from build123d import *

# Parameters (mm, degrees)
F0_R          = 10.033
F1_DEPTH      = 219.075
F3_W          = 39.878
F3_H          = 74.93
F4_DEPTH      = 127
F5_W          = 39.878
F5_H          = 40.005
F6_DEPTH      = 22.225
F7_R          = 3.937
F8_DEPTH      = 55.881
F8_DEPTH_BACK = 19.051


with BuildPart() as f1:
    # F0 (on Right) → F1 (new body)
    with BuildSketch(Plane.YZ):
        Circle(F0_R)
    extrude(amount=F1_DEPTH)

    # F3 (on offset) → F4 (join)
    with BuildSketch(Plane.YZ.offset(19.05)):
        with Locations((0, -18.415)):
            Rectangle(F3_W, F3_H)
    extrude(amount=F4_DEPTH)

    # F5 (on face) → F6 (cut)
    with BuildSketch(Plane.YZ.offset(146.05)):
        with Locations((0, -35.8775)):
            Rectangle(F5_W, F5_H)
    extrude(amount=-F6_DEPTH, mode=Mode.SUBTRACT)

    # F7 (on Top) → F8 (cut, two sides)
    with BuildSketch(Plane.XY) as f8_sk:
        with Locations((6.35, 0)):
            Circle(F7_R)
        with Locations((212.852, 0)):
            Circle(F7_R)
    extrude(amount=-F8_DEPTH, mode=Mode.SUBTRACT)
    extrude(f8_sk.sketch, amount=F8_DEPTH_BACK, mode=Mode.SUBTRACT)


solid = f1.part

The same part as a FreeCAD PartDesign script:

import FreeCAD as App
import Part
import Sketcher
Q = App.Units.Quantity


def add_polygon(sketch, points):
    """Adds a closed chain of lines whose ends are joined by coincident constraints."""
    first, n = sketch.GeometryCount, len(points)
    for a, b in zip(points, points[1:] + points[:1]):
        sketch.addGeometry(Part.LineSegment(App.Vector(*a, 0), App.Vector(*b, 0)), False)
    for i in range(n):
        sketch.addConstraint(Sketcher.Constraint("Coincident", first + i, 2, first + (i + 1) % n, 1))

doc = App.newDocument("Part")
body = doc.addObject("PartDesign::Body", "Body")

# Sketch on YZ plane
sketch1 = body.newObject("Sketcher::SketchObject", "Sketch")
sketch1.AttachmentSupport = (doc.getObject("YZ_Plane"), [""])
sketch1.MapMode = "FlatFace"
sketch1.addGeometry(Part.Circle(App.Vector(0, 0, 0), App.Vector(0, 0, 1), 10), False)
sketch1.addConstraint(Sketcher.Constraint("Coincident", 0, 3, -1, 1))
sketch1.addConstraint(Sketcher.Constraint("Diameter", 0, Q("0.79 in")))
pad1 = body.newObject("PartDesign::Pad", "Pad")
pad1.Profile = sketch1
pad1.Length = Q("8.625 in")

# Sketch on YZ plane
sketch2 = body.newObject("Sketcher::SketchObject", "Sketch001")
sketch2.AttachmentSupport = (doc.getObject("YZ_Plane"), [""])
sketch2.MapMode = "FlatFace"
sketch2.AttachmentOffset = App.Placement(App.Vector(0, 0, 0.75 * 25.4), App.Rotation())
add_polygon(sketch2, [(-20, 19), (-20, -56), (20, -56), (20, 19)])  # lines 0-3
sketch2.addConstraint(Sketcher.Constraint("Vertical", 0))
sketch2.addConstraint(Sketcher.Constraint("Horizontal", 1))
sketch2.addConstraint(Sketcher.Constraint("Vertical", 2))
sketch2.addConstraint(Sketcher.Constraint("Horizontal", 3))
sketch2.addConstraint(Sketcher.Constraint("DistanceX", 1, 1, 1, 2, Q("1.57 in")))
sketch2.addConstraint(Sketcher.Constraint("DistanceY", 0, 2, 0, 1, Q("2.95 in")))
sketch2.addConstraint(Sketcher.Constraint("DistanceY", 0, 2, -1, 1, Q("2.2 in")))
sketch2.addConstraint(Sketcher.Constraint("DistanceX", 0, 2, -1, 1, Q("0.785 in")))
pad2 = body.newObject("PartDesign::Pad", "Pad001")
pad2.Profile = sketch2
pad2.Length = Q("5 in")

# Sketch on YZ plane
sketch3 = body.newObject("Sketcher::SketchObject", "Sketch002")
sketch3.AttachmentSupport = (doc.getObject("YZ_Plane"), [""])
sketch3.MapMode = "FlatFace"
sketch3.AttachmentOffset = App.Placement(App.Vector(0, 0, 5.75 * 25.4), App.Rotation())
add_polygon(sketch3, [(-20, -16), (-20, -56), (20, -56), (20, -16)])  # lines 0-3
sketch3.addConstraint(Sketcher.Constraint("Vertical", 0))
sketch3.addConstraint(Sketcher.Constraint("Horizontal", 1))
sketch3.addConstraint(Sketcher.Constraint("Vertical", 2))
sketch3.addConstraint(Sketcher.Constraint("Horizontal", 3))
sketch3.addConstraint(Sketcher.Constraint("DistanceX", 1, 1, 1, 2, Q("1.57 in")))
sketch3.addConstraint(Sketcher.Constraint("DistanceY", 0, 2, -1, 1, Q("2.2 in")))
sketch3.addConstraint(Sketcher.Constraint("DistanceY", 0, 2, 0, 1, Q("1.575 in")))
sketch3.addConstraint(Sketcher.Constraint("DistanceX", 0, 2, -1, 1, Q("0.785 in")))
pocket1 = body.newObject("PartDesign::Pocket", "Pocket")
pocket1.Profile = sketch3
pocket1.Length = Q("0.875 in")

# Sketch on XY plane
sketch4 = body.newObject("Sketcher::SketchObject", "Sketch003")
sketch4.AttachmentSupport = (doc.getObject("XY_Plane"), [""])
sketch4.MapMode = "FlatFace"
sketch4.addGeometry(Part.Circle(App.Vector(6.3, 0, 0), App.Vector(0, 0, 1), 3.9), False)
sketch4.addGeometry(Part.Circle(App.Vector(212.9, 0, 0), App.Vector(0, 0, 1), 3.9), False)
sketch4.addConstraint(Sketcher.Constraint("Equal", 0, 1))
sketch4.addConstraint(Sketcher.Constraint("PointOnObject", 0, 3, -1))
sketch4.addConstraint(Sketcher.Constraint("PointOnObject", 1, 3, -1))
sketch4.addConstraint(Sketcher.Constraint("Diameter", 0, Q("0.31 in")))
sketch4.addConstraint(Sketcher.Constraint("DistanceX", -1, 1, 0, 3, Q("0.25 in")))
sketch4.addConstraint(Sketcher.Constraint("DistanceX", -1, 1, 1, 3, Q("8.38 in")))
pocket2 = body.newObject("PartDesign::Pocket", "Pocket001")
pocket2.Profile = sketch4
pocket2.Type = "ThroughAll"
pocket2.Midplane = True

doc.recompute()
